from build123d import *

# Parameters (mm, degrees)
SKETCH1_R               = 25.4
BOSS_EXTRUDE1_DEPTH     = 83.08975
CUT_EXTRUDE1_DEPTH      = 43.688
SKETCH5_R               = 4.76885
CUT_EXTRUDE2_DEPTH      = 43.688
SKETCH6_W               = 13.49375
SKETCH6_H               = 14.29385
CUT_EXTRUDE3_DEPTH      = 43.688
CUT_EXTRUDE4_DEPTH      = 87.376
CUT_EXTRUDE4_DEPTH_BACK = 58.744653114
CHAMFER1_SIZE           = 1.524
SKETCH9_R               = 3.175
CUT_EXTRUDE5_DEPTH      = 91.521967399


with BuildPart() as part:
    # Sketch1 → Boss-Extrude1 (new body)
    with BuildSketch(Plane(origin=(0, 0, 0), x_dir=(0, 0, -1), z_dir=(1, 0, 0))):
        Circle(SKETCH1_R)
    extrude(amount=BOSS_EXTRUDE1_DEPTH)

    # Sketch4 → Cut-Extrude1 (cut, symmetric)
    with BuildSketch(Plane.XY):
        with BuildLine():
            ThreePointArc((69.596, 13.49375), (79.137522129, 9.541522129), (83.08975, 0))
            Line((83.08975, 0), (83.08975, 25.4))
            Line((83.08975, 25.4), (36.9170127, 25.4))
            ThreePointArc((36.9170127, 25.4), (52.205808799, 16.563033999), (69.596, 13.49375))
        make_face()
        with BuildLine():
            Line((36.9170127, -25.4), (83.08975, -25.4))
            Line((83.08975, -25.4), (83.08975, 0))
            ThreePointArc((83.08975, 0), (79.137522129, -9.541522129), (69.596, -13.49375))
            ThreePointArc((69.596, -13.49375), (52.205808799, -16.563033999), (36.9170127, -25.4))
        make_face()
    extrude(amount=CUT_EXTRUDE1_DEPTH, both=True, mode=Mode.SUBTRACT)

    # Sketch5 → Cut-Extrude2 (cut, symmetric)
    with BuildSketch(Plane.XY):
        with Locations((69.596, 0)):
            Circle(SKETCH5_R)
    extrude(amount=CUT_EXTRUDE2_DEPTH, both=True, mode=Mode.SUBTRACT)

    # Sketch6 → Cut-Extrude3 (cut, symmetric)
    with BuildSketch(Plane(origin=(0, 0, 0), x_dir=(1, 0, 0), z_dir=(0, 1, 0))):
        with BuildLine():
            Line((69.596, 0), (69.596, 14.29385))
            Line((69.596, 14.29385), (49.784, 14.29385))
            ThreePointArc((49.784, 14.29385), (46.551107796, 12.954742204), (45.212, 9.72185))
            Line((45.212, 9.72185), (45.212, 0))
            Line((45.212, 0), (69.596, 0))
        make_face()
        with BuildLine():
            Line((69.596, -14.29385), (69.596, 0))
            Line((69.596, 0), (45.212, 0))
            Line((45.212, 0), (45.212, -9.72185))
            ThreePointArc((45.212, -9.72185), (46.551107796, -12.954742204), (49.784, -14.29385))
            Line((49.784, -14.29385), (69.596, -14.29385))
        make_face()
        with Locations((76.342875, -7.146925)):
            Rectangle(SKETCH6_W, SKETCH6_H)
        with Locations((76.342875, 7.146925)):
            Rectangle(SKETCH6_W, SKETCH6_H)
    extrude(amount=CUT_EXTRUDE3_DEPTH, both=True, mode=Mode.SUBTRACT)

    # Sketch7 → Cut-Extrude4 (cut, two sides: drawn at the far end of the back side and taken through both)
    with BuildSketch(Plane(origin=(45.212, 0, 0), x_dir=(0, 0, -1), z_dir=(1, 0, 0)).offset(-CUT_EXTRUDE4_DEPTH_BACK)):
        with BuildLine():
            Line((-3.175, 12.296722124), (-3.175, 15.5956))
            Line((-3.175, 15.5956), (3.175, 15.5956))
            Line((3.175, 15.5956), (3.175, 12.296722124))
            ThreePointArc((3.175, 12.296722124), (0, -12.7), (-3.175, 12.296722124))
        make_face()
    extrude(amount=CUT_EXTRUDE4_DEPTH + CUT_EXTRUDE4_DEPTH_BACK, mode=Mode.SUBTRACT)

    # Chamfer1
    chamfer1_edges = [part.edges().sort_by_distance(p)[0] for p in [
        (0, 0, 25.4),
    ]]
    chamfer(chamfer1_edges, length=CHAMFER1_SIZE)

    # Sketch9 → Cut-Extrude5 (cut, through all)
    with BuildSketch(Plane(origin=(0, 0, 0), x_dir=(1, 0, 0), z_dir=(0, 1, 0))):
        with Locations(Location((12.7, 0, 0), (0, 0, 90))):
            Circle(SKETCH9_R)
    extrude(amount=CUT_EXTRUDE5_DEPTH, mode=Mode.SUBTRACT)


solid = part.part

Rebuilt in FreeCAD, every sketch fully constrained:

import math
import FreeCAD as App
import Part
import Sketcher
Q = App.Units.Quantity


def edges_at(feature, points):
    """Names of the edges that pass closest to the given points."""
    edges = feature.Shape.Edges
    near = lambda p: min(range(len(edges)), key=lambda i: edges[i].distToShape(Part.Vertex(*p))[0])
    return sorted({f"Edge{near(p) + 1}" for p in points})

doc = App.newDocument("Part")
body = doc.addObject("PartDesign::Body", "Body")

# Sketch on YZ plane
sketch1 = doc.addObject("Sketcher::SketchObject", "Sketch")
body.addObject(sketch1)
sketch1.AttachmentSupport = (doc.YZ_Plane, [""])
sketch1.MapMode = "FlatFace"
sketch1.addGeometry(Part.Circle(App.Vector(0, 0, 0), App.Vector(0, 0, 1), 25.4), False)
sketch1.addConstraint(Sketcher.Constraint("Coincident", 0, 3, -1, 1))
sketch1.addConstraint(Sketcher.Constraint("Diameter", 0, Q("2 in")))
pad1 = doc.addObject("PartDesign::Pad", "Pad")
body.addObject(pad1)
pad1.Profile = sketch1
pad1.Length = 83.08975

# Sketch on XY plane
sketch2 = doc.addObject("Sketcher::SketchObject", "Sketch001")
body.addObject(sketch2)
sketch2.AttachmentSupport = (doc.XY_Plane, [""])
sketch2.MapMode = "FlatFace"
sketch2.addGeometry(Part.ArcOfCircle(Part.Circle(App.Vector(69.596, 0, 0), App.Vector(0, 0, 1), 13.49375), math.radians(0), math.radians(90)), False)
sketch2.addGeometry(Part.LineSegment(App.Vector(83.08975, 0, 0), App.Vector(83.08975, 25.4, 0)), False)
sketch2.addGeometry(Part.LineSegment(App.Vector(83.08975, 25.4, 0), App.Vector(36.917013, 25.4, 0)), False)
sketch2.addGeometry(Part.ArcOfCircle(Part.Circle(App.Vector(69.596, 64.29375, 0), App.Vector(0, 0, 1), 50.8), math.radians(-130.037373), math.radians(-90)), False)
sketch2.addGeometry(Part.LineSegment(App.Vector(36.917013, -25.4, 0), App.Vector(83.08975, -25.4, 0)), False)
sketch2.addGeometry(Part.LineSegment(App.Vector(83.08975, -25.4, 0), App.Vector(83.08975, 0, 0)), False)
sketch2.addGeometry(Part.ArcOfCircle(Part.Circle(App.Vector(69.596, 0, 0), App.Vector(0, 0, 1), 13.49375), math.radians(-90), math.radians(0)), False)
sketch2.addGeometry(Part.ArcOfCircle(Part.Circle(App.Vector(69.596, -64.29375, 0), App.Vector(0, 0, 1), 50.8), math.radians(90), math.radians(130.037373)), False)
sketch2.addConstraint(Sketcher.Constraint("Tangent", 0, 1, 1, 1))
sketch2.addConstraint(Sketcher.Constraint("Coincident", 1, 2, 2, 1))
sketch2.addConstraint(Sketcher.Constraint("Coincident", 2, 2, 3, 1))
sketch2.addConstraint(Sketcher.Constraint("Tangent", 3, 2, 0, 2))
sketch2.addConstraint(Sketcher.Constraint("Coincident", 4, 2, 5, 1))
sketch2.addConstraint(Sketcher.Constraint("Tangent", 5, 2, 6, 2))
sketch2.addConstraint(Sketcher.Constraint("Tangent", 6, 1, 7, 1))
sketch2.addConstraint(Sketcher.Constraint("Coincident", 7, 2, 4, 1))
sketch2.addConstraint(Sketcher.Constraint("Vertical", 1))
sketch2.addConstraint(Sketcher.Constraint("Horizontal", 2))
sketch2.addConstraint(Sketcher.Constraint("Horizontal", 4))
sketch2.addConstraint(Sketcher.Constraint("Vertical", 5))
sketch2.addConstraint(Sketcher.Constraint("Coincident", 6, 3, 0, 3))
sketch2.addConstraint(Sketcher.Constraint("Equal", 0, 6))
sketch2.addConstraint(Sketcher.Constraint("Equal", 3, 7))
sketch2.addConstraint(Sketcher.Constraint("Symmetric", 3, 3, 7, 3, -1))
sketch2.addConstraint(Sketcher.Constraint("Vertical", 0, 3, 3, 3))
sketch2.addConstraint(Sketcher.Constraint("Vertical", 2, 2, 7, 2))
sketch2.addConstraint(Sketcher.Constraint("Radius", 3, Q("2 in")))
sketch2.addConstraint(Sketcher.Constraint("DistanceY", 1, 1, 1, 2, Q("1 in")))
sketch2.addConstraint(Sketcher.Constraint("Radius", 0, Q("0.53125 in")))
sketch2.addConstraint(Sketcher.Constraint("DistanceX", -1, 1, 0, 3, Q("2.74 in")))
pocket1 = doc.addObject("PartDesign::Pocket", "Pocket")
body.addObject(pocket1)
pocket1.Profile = sketch2
pocket1.Length = Q("3.44 in")
pocket1.Midplane = True

# Sketch on XY plane
sketch3 = doc.addObject("Sketcher::SketchObject", "Sketch002")
body.addObject(sketch3)
sketch3.AttachmentSupport = (doc.XY_Plane, [""])
sketch3.MapMode = "FlatFace"
sketch3.addGeometry(Part.Circle(App.Vector(69.596, 0, 0), App.Vector(0, 0, 1), 4.76885), False)
sketch3.addConstraint(Sketcher.Constraint("PointOnObject", 0, 3, -1))
sketch3.addConstraint(Sketcher.Constraint("Diameter", 0, Q("0.3755 in")))
sketch3.addConstraint(Sketcher.Constraint("DistanceX", -1, 1, 0, 3, Q("2.74 in")))
pocket2 = doc.addObject("PartDesign::Pocket", "Pocket001")
body.addObject(pocket2)
pocket2.Profile = sketch3
pocket2.Length = Q("3.44 in")
pocket2.Midplane = True

# Sketch on XZ plane
sketch4 = doc.addObject("Sketcher::SketchObject", "Sketch003")
body.addObject(sketch4)
sketch4.AttachmentSupport = (doc.XZ_Plane, [""])
sketch4.MapMode = "FlatFace"
sketch4.addGeometry(Part.ArcOfCircle(Part.Circle(App.Vector(49.784, -9.72185, 0), App.Vector(0, 0, 1), 4.572), math.radians(180), math.radians(270)), False)
sketch4.addGeometry(Part.LineSegment(App.Vector(45.212, -9.72185, 0), App.Vector(45.212, 9.72185, 0)), False)
sketch4.addGeometry(Part.ArcOfCircle(Part.Circle(App.Vector(49.784, 9.72185, 0), App.Vector(0, 0, 1), 4.572), math.radians(90), math.radians(180)), False)
sketch4.addGeometry(Part.LineSegment(App.Vector(49.784, 14.29385, 0), App.Vector(83.08975, 14.29385, 0)), False)
sketch4.addGeometry(Part.LineSegment(App.Vector(83.08975, 14.29385, 0), App.Vector(83.08975, -14.29385, 0)), False)
sketch4.addGeometry(Part.LineSegment(App.Vector(83.08975, -14.29385, 0), App.Vector(49.784, -14.29385, 0)), False)
sketch4.addConstraint(Sketcher.Constraint("Tangent", 0, 1, 1, 1))
sketch4.addConstraint(Sketcher.Constraint("Tangent", 1, 2, 2, 2))
sketch4.addConstraint(Sketcher.Constraint("Tangent", 2, 1, 3, 1))
sketch4.addConstraint(Sketcher.Constraint("Coincident", 3, 2, 4, 1))
sketch4.addConstraint(Sketcher.Constraint("Coincident", 4, 2, 5, 1))
sketch4.addConstraint(Sketcher.Constraint("Tangent", 5, 2, 0, 2))
sketch4.addConstraint(Sketcher.Constraint("Vertical", 1))
sketch4.addConstraint(Sketcher.Constraint("Horizontal", 3))
sketch4.addConstraint(Sketcher.Constraint("Vertical", 4))
sketch4.addConstraint(Sketcher.Constraint("Horizontal", 5))
sketch4.addConstraint(Sketcher.Constraint("Equal", 0, 2))
sketch4.addConstraint(Sketcher.Constraint("Radius", 0, Q("0.18 in")))
sketch4.addConstraint(Sketcher.Constraint("DistanceX", -1, 1, 0, 3, Q("1.96 in")))
sketch4.addConstraint(Sketcher.Constraint("DistanceY", 1, 1, 1, 2, Q("0.7655 in")))
sketch4.addConstraint(Sketcher.Constraint("DistanceX", 3, 1, 3, 2, 33.30575))
sketch4.addConstraint(Sketcher.Constraint("DistanceY", 0, 3, -1, 1, 9.72185))
pocket3 = doc.addObject("PartDesign::Pocket", "Pocket002")
body.addObject(pocket3)
pocket3.Profile = sketch4
pocket3.Length = Q("3.44 in")
pocket3.Midplane = True

# Sketch on YZ plane
sketch5 = doc.addObject("Sketcher::SketchObject", "Sketch004")
body.addObject(sketch5)
sketch5.AttachmentSupport = (doc.YZ_Plane, [""])
sketch5.MapMode = "FlatFace"
sketch5.AttachmentOffset = App.Placement(App.Vector(0, 0, 1.78 * 25.4), App.Rotation())
sketch5.addGeometry(Part.LineSegment(App.Vector(15.5956, 3.175, 0), App.Vector(12.296722, 3.175, 0)), False)
sketch5.addGeometry(Part.ArcOfCircle(Part.Circle(App.Vector(0, 0, 0), App.Vector(0, 0, 1), 12.7), math.radians(14.477512), math.radians(345.522488)), False)
sketch5.addGeometry(Part.LineSegment(App.Vector(12.296722, -3.175, 0), App.Vector(15.5956, -3.175, 0)), False)
sketch5.addGeometry(Part.LineSegment(App.Vector(15.5956, -3.175, 0), App.Vector(15.5956, 3.175, 0)), False)
sketch5.addConstraint(Sketcher.Constraint("Coincident", 0, 2, 1, 1))
sketch5.addConstraint(Sketcher.Constraint("Coincident", 1, 2, 2, 1))
sketch5.addConstraint(Sketcher.Constraint("Coincident", 2, 2, 3, 1))
sketch5.addConstraint(Sketcher.Constraint("Coincident", 3, 2, 0, 1))
sketch5.addConstraint(Sketcher.Constraint("Horizontal", 0))
sketch5.addConstraint(Sketcher.Constraint("Horizontal", 2))
sketch5.addConstraint(Sketcher.Constraint("Vertical", 3))
sketch5.addConstraint(Sketcher.Constraint("Coincident", 1, 3, -1, 1))
sketch5.addConstraint(Sketcher.Constraint("Vertical", 0, 2, 1, 2))
sketch5.addConstraint(Sketcher.Constraint("Radius", 1, Q("0.5 in")))
sketch5.addConstraint(Sketcher.Constraint("DistanceY", 3, 1, 3, 2, Q("0.25 in")))
sketch5.addConstraint(Sketcher.Constraint("DistanceX", -1, 1, 2, 2, Q("0.614 in")))
pocket4 = doc.addObject("PartDesign::Pocket", "Pocket003")
body.addObject(pocket4)
pocket4.Profile = sketch5
pocket4.Type = "ThroughAll"
pocket4.Midplane = True
doc.recompute()

chamfer = doc.addObject("PartDesign::Chamfer", "Chamfer")
body.addObject(chamfer)
chamfer.Base = (pocket4, edges_at(pocket4, [(0, 0, 25.4)]))
chamfer.Size = Q("0.06 in")

# Sketch on XZ plane
sketch6 = doc.addObject("Sketcher::SketchObject", "Sketch005")
body.addObject(sketch6)
sketch6.AttachmentSupport = (doc.XZ_Plane, [""])
sketch6.MapMode = "FlatFace"
sketch6.addGeometry(Part.Circle(App.Vector(12.7, 0, 0), App.Vector(0, 0, 1), 3.175), False)
sketch6.addConstraint(Sketcher.Constraint("PointOnObject", 0, 3, -1))
sketch6.addConstraint(Sketcher.Constraint("Diameter", 0, Q("0.25 in")))
sketch6.addConstraint(Sketcher.Constraint("DistanceX", -1, 1, 0, 3, Q("0.5 in")))
pocket5 = doc.addObject("PartDesign::Pocket", "Pocket004")
body.addObject(pocket5)
pocket5.Profile = sketch6
pocket5.Type = "ThroughAll"

doc.recompute()
